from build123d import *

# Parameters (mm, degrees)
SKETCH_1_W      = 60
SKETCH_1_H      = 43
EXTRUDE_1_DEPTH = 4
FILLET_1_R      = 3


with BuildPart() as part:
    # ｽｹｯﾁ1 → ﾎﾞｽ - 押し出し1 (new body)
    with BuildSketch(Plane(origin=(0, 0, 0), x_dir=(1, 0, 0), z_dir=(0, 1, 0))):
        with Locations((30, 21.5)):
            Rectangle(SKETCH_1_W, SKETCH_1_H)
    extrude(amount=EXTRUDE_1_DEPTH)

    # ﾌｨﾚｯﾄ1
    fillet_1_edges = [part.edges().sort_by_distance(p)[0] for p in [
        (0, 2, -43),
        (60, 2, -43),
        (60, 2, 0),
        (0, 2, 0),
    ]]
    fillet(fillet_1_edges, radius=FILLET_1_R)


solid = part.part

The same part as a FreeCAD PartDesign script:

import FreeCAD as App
import Part
import Sketcher


def edges_at(feature, points):
    """Names of the edges that pass closest to the given points."""
    edges = feature.Shape.Edges
    near = lambda p: min(range(len(edges)), key=lambda i: edges[i].distToShape(Part.Vertex(*p))[0])
    return sorted({f"Edge{near(p) + 1}" for p in points})


def add_polygon(sketch, points):
    """Adds a closed chain of lines whose ends are joined by coincident constraints."""
    first, n = sketch.GeometryCount, len(points)
    for a, b in zip(points, points[1:] + points[:1]):
        sketch.addGeometry(Part.LineSegment(App.Vector(*a, 0), App.Vector(*b, 0)), False)
    for i in range(n):
        sketch.addConstraint(Sketcher.Constraint("Coincident", first + i, 2, first + (i + 1) % n, 1))

doc = App.newDocument("Part")
body = doc.addObject("PartDesign::Body", "Body")

# Sketch on XZ plane
sketch1 = body.newObject("Sketcher::SketchObject", "Sketch")
sketch1.AttachmentSupport = (doc.getObject("XZ_Plane"), [""])
sketch1.MapMode = "FlatFace"
add_polygon(sketch1, [(0, -43), (0, 0), (60, 0), (60, -43)])  # lines 0-3
sketch1.addConstraint([
    Sketcher.Constraint("Vertical", 0),
    Sketcher.Constraint("Horizontal", 1),
    Sketcher.Constraint("Vertical", 2),
    Sketcher.Constraint("Horizontal", 3),
    Sketcher.Constraint("Coincident", 0, 2, -1, 1),
    Sketcher.Constraint("DistanceX", 1, 1, 1, 2, 60.0),
    Sketcher.Constraint("DistanceY", 0, 1, 0, 2, 43.0),
])
pad1 = body.newObject("PartDesign::Pad", "Pad")
pad1.Profile = sketch1
pad1.Length = 4
pad1.Reversed = True
doc.recompute()

fillet = body.newObject("PartDesign::Fillet", "Fillet")
fillet.Base = (pad1, edges_at(pad1, [
    (0, 2, -43),
    (60, 2, -43),
    (60, 2, 0),
    (0, 2, 0),
]))
fillet.Radius = 3

doc.recompute()
